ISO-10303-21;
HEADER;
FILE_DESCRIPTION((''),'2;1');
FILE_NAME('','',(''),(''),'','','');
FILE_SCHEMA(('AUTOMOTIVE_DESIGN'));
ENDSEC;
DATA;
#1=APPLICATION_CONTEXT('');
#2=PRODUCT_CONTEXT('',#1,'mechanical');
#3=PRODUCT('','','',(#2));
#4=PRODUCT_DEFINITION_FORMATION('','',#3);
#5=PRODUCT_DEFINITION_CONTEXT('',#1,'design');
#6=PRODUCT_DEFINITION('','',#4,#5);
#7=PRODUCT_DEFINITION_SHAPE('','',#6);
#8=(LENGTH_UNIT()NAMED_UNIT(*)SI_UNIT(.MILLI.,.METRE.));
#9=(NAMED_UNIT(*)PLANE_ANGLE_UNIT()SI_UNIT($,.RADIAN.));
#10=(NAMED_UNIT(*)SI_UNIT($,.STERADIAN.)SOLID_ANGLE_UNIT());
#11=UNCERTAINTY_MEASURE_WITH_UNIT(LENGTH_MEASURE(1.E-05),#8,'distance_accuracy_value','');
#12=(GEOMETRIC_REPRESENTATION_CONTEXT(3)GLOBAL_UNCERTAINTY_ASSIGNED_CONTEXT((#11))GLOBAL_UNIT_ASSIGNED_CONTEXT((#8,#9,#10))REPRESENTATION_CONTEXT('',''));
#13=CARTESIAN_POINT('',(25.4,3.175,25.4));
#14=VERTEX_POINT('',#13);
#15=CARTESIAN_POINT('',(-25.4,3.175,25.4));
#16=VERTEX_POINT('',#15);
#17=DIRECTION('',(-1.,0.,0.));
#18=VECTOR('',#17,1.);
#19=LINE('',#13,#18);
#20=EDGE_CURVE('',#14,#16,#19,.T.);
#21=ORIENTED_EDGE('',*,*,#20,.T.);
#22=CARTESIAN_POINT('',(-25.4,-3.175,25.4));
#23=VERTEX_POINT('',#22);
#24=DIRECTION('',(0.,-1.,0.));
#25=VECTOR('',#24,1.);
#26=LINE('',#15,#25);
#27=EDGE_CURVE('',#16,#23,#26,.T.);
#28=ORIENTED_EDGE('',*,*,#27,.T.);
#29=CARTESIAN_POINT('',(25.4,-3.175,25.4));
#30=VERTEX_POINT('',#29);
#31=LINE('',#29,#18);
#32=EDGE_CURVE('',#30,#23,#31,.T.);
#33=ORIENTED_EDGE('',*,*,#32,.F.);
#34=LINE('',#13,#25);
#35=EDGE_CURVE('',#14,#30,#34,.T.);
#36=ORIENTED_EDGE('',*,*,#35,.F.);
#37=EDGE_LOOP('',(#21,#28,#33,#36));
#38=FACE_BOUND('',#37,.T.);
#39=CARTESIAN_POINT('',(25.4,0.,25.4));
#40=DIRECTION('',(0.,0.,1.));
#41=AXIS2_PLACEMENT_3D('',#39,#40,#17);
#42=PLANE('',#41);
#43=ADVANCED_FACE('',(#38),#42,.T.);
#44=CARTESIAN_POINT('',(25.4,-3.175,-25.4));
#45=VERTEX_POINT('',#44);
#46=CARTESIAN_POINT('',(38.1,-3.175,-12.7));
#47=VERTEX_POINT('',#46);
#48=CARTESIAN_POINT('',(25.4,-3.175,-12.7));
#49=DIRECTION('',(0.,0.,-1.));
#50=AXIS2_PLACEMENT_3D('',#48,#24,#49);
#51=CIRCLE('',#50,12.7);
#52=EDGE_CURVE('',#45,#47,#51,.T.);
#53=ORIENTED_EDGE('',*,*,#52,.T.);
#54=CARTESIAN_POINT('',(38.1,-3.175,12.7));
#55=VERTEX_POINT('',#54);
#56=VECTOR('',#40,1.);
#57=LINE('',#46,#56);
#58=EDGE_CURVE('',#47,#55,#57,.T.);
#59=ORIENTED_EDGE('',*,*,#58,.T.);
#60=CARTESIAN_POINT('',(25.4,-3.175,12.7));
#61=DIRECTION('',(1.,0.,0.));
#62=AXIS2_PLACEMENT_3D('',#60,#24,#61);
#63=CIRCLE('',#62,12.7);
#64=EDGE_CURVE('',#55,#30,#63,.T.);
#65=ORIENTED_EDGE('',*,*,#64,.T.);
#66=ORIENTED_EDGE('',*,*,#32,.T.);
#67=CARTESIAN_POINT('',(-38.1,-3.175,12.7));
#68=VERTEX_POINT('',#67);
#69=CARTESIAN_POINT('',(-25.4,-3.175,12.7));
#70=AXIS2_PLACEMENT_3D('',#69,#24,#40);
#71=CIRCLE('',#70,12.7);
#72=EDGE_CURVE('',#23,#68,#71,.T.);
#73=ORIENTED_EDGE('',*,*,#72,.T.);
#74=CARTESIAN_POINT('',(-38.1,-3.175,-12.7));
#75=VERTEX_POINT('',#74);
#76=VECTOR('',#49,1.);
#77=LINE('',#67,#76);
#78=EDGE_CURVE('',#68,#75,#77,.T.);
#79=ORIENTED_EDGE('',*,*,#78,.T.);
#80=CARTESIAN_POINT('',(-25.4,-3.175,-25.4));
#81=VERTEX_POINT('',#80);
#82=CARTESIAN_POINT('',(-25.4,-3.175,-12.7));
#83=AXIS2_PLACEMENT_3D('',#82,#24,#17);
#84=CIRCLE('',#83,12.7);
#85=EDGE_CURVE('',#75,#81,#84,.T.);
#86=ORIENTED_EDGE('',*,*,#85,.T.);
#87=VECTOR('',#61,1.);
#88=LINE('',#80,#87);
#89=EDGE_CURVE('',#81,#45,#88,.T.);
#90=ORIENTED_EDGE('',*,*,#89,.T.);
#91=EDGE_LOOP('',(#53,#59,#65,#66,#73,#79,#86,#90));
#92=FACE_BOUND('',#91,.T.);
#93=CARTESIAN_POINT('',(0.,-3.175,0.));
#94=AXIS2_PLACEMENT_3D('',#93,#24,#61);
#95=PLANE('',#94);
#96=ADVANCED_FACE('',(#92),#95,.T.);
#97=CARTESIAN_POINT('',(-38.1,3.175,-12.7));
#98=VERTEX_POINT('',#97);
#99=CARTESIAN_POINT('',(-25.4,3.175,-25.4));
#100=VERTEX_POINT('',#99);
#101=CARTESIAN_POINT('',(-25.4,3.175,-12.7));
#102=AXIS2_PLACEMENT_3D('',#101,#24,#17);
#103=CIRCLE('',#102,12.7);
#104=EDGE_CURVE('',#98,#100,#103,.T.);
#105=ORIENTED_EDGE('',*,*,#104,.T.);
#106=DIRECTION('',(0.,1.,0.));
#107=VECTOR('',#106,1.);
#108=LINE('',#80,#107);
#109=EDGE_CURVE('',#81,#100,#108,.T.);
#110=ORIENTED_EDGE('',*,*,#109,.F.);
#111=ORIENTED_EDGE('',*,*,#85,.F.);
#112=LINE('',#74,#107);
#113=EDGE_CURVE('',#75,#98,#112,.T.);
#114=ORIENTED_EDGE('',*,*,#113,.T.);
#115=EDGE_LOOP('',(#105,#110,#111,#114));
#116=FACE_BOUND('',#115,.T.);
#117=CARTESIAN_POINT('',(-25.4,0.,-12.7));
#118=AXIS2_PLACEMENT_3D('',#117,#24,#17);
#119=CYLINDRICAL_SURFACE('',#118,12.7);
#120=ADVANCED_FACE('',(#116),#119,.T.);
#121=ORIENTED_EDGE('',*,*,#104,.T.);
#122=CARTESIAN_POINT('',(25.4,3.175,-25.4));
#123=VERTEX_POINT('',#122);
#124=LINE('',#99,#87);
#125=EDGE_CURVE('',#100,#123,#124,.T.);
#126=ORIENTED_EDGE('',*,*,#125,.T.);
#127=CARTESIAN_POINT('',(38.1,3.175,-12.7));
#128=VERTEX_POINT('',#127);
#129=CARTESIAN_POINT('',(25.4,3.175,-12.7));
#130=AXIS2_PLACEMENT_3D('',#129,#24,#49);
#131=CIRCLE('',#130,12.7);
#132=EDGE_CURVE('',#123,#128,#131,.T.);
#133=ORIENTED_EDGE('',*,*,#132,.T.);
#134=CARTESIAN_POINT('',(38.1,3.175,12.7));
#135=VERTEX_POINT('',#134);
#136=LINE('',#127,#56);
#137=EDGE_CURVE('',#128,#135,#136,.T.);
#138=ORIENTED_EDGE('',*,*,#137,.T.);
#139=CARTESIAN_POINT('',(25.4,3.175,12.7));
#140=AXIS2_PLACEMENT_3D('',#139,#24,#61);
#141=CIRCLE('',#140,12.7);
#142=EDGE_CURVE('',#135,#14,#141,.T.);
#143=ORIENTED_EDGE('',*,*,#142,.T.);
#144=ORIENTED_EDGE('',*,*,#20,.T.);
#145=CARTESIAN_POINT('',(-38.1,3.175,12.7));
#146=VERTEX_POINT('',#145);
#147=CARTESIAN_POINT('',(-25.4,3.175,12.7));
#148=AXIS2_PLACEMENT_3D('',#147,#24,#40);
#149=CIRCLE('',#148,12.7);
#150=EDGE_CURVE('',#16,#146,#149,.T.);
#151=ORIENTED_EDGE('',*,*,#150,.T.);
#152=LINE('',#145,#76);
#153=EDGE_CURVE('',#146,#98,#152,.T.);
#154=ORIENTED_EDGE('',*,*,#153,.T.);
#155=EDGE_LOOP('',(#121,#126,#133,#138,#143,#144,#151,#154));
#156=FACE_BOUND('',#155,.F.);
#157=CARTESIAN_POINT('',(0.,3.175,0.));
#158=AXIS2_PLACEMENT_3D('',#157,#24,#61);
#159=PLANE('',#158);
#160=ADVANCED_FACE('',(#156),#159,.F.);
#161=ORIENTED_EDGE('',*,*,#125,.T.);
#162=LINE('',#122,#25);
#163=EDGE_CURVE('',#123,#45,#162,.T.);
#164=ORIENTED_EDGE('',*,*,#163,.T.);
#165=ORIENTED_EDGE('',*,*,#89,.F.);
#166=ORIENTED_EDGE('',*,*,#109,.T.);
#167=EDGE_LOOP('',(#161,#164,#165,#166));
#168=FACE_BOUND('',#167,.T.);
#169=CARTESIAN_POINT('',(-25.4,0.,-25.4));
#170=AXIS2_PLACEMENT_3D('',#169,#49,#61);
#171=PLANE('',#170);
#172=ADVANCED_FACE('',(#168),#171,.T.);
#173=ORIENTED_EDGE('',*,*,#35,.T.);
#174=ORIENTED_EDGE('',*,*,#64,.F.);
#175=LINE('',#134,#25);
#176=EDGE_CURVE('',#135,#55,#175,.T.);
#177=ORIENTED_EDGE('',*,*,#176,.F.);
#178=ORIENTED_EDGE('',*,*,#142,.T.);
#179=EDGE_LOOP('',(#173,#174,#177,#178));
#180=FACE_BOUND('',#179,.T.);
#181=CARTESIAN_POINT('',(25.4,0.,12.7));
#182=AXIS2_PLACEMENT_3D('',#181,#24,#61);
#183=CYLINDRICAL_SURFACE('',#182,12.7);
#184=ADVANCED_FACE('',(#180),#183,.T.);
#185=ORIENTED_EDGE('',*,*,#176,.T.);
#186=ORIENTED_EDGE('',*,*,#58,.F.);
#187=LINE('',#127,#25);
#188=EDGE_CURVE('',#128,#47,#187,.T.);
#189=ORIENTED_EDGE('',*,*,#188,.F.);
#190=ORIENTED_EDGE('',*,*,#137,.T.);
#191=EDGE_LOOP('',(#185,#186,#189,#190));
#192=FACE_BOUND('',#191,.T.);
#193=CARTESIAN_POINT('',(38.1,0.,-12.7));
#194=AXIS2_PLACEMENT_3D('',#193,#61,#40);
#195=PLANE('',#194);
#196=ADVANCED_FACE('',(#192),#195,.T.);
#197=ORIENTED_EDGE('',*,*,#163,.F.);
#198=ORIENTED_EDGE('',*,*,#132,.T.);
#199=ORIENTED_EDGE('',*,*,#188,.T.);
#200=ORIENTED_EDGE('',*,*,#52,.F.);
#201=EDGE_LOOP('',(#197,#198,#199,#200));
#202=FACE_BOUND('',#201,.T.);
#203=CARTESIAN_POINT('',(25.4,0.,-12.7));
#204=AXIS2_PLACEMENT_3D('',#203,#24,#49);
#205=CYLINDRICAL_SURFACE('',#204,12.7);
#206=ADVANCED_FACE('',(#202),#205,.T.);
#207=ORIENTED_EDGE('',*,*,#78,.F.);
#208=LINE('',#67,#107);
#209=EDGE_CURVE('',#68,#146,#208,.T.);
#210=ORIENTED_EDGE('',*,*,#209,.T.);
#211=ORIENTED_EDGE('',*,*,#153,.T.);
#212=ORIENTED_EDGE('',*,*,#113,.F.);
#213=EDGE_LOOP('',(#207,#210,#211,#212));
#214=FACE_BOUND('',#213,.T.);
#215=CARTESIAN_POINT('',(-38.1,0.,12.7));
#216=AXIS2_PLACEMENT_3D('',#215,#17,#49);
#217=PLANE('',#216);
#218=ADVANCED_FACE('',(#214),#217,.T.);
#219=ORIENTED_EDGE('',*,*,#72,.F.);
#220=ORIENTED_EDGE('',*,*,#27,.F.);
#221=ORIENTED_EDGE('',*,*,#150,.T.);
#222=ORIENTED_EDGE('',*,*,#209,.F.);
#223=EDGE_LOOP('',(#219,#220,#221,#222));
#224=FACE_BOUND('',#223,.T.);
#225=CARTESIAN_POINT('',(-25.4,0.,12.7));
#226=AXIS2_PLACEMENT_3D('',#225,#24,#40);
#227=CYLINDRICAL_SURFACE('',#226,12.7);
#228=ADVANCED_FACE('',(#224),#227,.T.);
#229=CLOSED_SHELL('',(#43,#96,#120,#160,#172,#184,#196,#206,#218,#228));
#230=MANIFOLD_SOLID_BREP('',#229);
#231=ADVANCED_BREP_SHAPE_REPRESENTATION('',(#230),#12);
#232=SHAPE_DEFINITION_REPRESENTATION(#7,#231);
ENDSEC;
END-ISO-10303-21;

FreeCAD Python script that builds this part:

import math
import FreeCAD as App
import Part
import Sketcher
from FreeCAD import Vector
Q = App.Units.Quantity

doc = App.newDocument("Part")
params = doc.addObject("Spreadsheet::Sheet", "Params")
for row, (alias, value) in enumerate([
    ("sketch1_radius", "0.5 in"),
    ("sketch1_width", "2 in"),
    ("sketch1_height", "1 in"),
    ("pad1_length", "0.25 in"),
], start=1):
    params.set(f"A{row}", alias)
    params.set(f"B{row}", "=" + value)
    params.setAlias(f"B{row}", alias)

body = doc.addObject("PartDesign::Body", "Body")

sketch1 = doc.addObject("Sketcher::SketchObject", "Sketch")
body.addObject(sketch1)
sketch1.AttachmentSupport = (doc.XZ_Plane, [""])
sketch1.MapMode = "FlatFace"
sketch1.addGeometry([
    Part.LineSegment(Vector(-25, -25, 0), Vector(25, -25, 0)),
    Part.ArcOfCircle(Part.Circle(Vector(25, -13, 0), Vector(0, 0, 1), 13), math.radians(-90), math.radians(0)),
    Part.LineSegment(Vector(38, -13, 0), Vector(38, 13, 0)),
    Part.ArcOfCircle(Part.Circle(Vector(25, 13, 0), Vector(0, 0, 1), 13), math.radians(0), math.radians(90)),
    Part.LineSegment(Vector(25, 25, 0), Vector(-25, 25, 0)),
    Part.ArcOfCircle(Part.Circle(Vector(-25, 13, 0), Vector(0, 0, 1), 13), math.radians(90), math.radians(180)),
    Part.LineSegment(Vector(-38, 13, 0), Vector(-38, -13, 0)),
    Part.ArcOfCircle(Part.Circle(Vector(-25, -13, 0), Vector(0, 0, 1), 13), math.radians(180), math.radians(270)),
], False)
sketch1.addConstraint([
    Sketcher.Constraint("Tangent", 0, 2, 1, 1),
    Sketcher.Constraint("Tangent", 1, 2, 2, 1),
    Sketcher.Constraint("Tangent", 2, 2, 3, 1),
    Sketcher.Constraint("Tangent", 3, 2, 4, 1),
    Sketcher.Constraint("Tangent", 4, 2, 5, 1),
    Sketcher.Constraint("Tangent", 5, 2, 6, 1),
    Sketcher.Constraint("Tangent", 6, 2, 7, 1),
    Sketcher.Constraint("Tangent", 7, 2, 0, 1),
    Sketcher.Constraint("Horizontal", 0),
    Sketcher.Constraint("Vertical", 2),
    Sketcher.Constraint("Horizontal", 4),
    Sketcher.Constraint("Vertical", 6),
    Sketcher.Constraint("Equal", 1, 3),
    Sketcher.Constraint("Equal", 3, 5),
    Sketcher.Constraint("Equal", 5, 7),
    Sketcher.Constraint("Symmetric", 1, 3, 5, 3, -1, 1),
    Sketcher.Constraint("Radius", 1, Q("0.5 in")),
    Sketcher.Constraint("DistanceX", 0, 1, 0, 2, Q("2 in")),
    Sketcher.Constraint("DistanceY", 2, 1, 2, 2, Q("1 in")),
])
sketch1.setExpression("Constraints[16]", "Params.sketch1_radius")
sketch1.setExpression("Constraints[17]", "Params.sketch1_width")
sketch1.setExpression("Constraints[18]", "Params.sketch1_height")
pad1 = doc.addObject("PartDesign::Pad", "Pad")
body.addObject(pad1)
pad1.Profile = sketch1
pad1.setExpression("Length", "Params.pad1_length")
pad1.Midplane = True

doc.recompute()
